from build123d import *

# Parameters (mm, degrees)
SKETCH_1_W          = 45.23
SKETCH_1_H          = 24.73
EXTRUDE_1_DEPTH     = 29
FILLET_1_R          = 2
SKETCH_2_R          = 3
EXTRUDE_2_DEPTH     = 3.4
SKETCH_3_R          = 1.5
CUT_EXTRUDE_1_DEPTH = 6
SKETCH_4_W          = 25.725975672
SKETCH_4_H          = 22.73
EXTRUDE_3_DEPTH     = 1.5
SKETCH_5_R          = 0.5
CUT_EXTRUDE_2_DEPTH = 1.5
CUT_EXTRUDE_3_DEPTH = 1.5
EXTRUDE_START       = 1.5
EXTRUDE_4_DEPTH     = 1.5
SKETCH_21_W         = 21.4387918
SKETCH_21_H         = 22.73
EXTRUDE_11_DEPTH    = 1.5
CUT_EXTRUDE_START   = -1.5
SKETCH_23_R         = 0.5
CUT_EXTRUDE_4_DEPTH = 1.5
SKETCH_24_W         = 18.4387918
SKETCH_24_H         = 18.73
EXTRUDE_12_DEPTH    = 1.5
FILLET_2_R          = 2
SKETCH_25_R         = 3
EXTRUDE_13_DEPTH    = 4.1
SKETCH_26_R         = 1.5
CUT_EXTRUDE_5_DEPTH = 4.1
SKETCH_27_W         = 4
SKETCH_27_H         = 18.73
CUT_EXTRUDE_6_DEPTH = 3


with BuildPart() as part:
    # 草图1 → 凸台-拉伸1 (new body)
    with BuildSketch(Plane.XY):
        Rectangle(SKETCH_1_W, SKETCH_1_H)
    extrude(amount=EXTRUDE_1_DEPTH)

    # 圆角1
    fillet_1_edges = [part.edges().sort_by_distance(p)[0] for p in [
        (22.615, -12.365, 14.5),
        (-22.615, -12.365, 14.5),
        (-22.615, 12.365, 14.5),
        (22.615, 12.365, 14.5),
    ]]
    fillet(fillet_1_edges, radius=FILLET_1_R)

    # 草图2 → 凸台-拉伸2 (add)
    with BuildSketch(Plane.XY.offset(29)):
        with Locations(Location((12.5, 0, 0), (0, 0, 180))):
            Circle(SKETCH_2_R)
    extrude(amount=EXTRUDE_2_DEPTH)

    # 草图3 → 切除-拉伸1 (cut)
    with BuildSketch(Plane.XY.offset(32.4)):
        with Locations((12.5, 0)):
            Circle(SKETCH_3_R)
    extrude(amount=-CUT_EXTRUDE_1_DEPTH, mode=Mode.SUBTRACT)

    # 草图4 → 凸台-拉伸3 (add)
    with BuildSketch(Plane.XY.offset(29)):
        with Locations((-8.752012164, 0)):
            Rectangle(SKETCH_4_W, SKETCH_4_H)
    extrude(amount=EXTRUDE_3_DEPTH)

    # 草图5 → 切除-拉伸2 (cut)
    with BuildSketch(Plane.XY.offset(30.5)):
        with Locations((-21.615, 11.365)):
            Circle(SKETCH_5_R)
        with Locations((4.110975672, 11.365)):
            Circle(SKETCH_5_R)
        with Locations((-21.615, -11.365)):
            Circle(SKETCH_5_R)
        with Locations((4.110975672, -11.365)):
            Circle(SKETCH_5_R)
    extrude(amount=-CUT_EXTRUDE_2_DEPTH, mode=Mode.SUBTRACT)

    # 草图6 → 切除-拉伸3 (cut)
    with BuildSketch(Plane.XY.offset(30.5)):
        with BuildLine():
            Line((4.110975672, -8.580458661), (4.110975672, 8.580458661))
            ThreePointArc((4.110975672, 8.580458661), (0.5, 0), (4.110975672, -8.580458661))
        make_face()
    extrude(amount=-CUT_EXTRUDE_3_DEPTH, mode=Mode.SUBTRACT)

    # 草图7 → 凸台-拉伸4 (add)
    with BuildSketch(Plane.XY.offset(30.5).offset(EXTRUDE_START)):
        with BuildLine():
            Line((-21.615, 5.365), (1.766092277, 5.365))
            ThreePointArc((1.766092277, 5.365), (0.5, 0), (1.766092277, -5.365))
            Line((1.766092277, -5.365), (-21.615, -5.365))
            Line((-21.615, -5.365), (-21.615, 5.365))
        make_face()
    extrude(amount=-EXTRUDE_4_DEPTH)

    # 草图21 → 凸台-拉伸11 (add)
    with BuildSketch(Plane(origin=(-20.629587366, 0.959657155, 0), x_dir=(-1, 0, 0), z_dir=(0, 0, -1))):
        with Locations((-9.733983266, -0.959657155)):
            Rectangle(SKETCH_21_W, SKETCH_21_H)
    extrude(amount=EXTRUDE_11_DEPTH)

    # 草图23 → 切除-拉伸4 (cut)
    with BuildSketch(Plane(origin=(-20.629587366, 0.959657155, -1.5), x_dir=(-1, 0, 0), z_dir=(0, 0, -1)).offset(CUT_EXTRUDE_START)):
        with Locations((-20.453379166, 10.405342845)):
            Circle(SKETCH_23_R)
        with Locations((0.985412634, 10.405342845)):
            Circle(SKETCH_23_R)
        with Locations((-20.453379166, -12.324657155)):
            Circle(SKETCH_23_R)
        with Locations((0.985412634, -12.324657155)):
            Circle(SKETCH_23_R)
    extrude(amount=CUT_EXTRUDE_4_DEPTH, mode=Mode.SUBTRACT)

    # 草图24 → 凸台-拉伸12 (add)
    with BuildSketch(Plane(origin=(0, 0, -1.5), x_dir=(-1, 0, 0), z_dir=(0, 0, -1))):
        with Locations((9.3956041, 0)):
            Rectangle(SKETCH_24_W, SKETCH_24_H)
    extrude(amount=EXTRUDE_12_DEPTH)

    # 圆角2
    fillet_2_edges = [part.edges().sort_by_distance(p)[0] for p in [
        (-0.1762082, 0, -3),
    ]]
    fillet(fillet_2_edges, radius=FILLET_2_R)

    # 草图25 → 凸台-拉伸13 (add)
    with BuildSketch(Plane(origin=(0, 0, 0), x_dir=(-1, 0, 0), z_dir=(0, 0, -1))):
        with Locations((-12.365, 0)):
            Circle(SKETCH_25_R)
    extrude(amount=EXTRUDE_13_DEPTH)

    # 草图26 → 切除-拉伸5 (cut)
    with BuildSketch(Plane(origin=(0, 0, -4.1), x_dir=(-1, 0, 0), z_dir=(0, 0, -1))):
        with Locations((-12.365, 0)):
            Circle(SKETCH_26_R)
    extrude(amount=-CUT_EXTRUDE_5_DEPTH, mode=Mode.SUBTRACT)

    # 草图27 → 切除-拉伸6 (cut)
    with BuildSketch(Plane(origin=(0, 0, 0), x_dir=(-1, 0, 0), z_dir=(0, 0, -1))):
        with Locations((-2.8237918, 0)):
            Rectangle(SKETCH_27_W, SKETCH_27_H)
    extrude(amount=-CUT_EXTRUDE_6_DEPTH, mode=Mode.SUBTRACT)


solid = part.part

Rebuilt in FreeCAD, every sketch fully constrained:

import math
import FreeCAD as App
import Part
import Sketcher
Q = App.Units.Quantity


def edges_at(feature, points):
    """Names of the edges that pass closest to the given points."""
    edges = feature.Shape.Edges
    near = lambda p: min(range(len(edges)), key=lambda i: edges[i].distToShape(Part.Vertex(*p))[0])
    return sorted({f"Edge{near(p) + 1}" for p in points})


def add_polygon(sketch, points):
    """Adds a closed chain of lines whose ends are joined by coincident constraints."""
    first, n = sketch.GeometryCount, len(points)
    for a, b in zip(points, points[1:] + points[:1]):
        sketch.addGeometry(Part.LineSegment(App.Vector(*a, 0), App.Vector(*b, 0)), False)
    for i in range(n):
        sketch.addConstraint(Sketcher.Constraint("Coincident", first + i, 2, first + (i + 1) % n, 1))

doc = App.newDocument("Part")
body = doc.addObject("PartDesign::Body", "Body")

sketch1 = body.newObject("Sketcher::SketchObject", "Sketch")
sketch1.AttachmentSupport = (doc.getObject("XY_Plane"), [""])
sketch1.MapMode = "FlatFace"
add_polygon(sketch1, [(-22.615, 12.365), (-22.615, -12.365), (22.615, -12.365), (22.615, 12.365)])
sketch1.addConstraint(Sketcher.Constraint("Vertical", 0))
sketch1.addConstraint(Sketcher.Constraint("Horizontal", 1))
sketch1.addConstraint(Sketcher.Constraint("Vertical", 2))
sketch1.addConstraint(Sketcher.Constraint("Horizontal", 3))
sketch1.addConstraint(Sketcher.Constraint("Symmetric", 0, 2, 2, 2, -1, 1))
sketch1.addConstraint(Sketcher.Constraint("DistanceX", 1, 1, 1, 2, Q("45.23 mm")))
sketch1.addConstraint(Sketcher.Constraint("DistanceY", 0, 2, 0, 1, Q("24.73 mm")))
pad1 = body.newObject("PartDesign::Pad", "Pad")
pad1.Profile = sketch1
pad1.Length = 29
doc.recompute()

fillet = body.newObject("PartDesign::Fillet", "Fillet")
fillet.Base = (pad1, edges_at(pad1, [
    (22.615, -12.365, 14.5),
    (-22.615, -12.365, 14.5),
    (-22.615, 12.365, 14.5),
    (22.615, 12.365, 14.5),
]))
fillet.Radius = 2

sketch2 = body.newObject("Sketcher::SketchObject", "Sketch001")
sketch2.AttachmentSupport = (doc.getObject("XY_Plane"), [""])
sketch2.MapMode = "FlatFace"
sketch2.AttachmentOffset = App.Placement(App.Vector(0, 0, 29), App.Rotation())
sketch2.addGeometry(Part.Circle(App.Vector(12.5, 0, 0), App.Vector(0, 0, 1), 3), False)
sketch2.addConstraint(Sketcher.Constraint("PointOnObject", 0, 3, -1))
sketch2.addConstraint(Sketcher.Constraint("Diameter", 0, Q("6 mm")))
sketch2.addConstraint(Sketcher.Constraint("DistanceX", -1, 1, 0, 3, Q("12.5 mm")))
pad2 = body.newObject("PartDesign::Pad", "Pad001")
pad2.Profile = sketch2
pad2.Length = 3.4

sketch3 = body.newObject("Sketcher::SketchObject", "Sketch002")
sketch3.AttachmentSupport = (doc.getObject("XY_Plane"), [""])
sketch3.MapMode = "FlatFace"
sketch3.AttachmentOffset = App.Placement(App.Vector(0, 0, 32.4), App.Rotation())
sketch3.addGeometry(Part.Circle(App.Vector(12.5, 0, 0), App.Vector(0, 0, 1), 1.5), False)
sketch3.addConstraint(Sketcher.Constraint("PointOnObject", 0, 3, -1))
sketch3.addConstraint(Sketcher.Constraint("Diameter", 0, Q("3 mm")))
sketch3.addConstraint(Sketcher.Constraint("DistanceX", -1, 1, 0, 3, Q("12.5 mm")))
pocket1 = body.newObject("PartDesign::Pocket", "Pocket")
pocket1.Profile = sketch3
pocket1.Length = 6

sketch4 = body.newObject("Sketcher::SketchObject", "Sketch003")
sketch4.AttachmentSupport = (doc.getObject("XY_Plane"), [""])
sketch4.MapMode = "FlatFace"
sketch4.AttachmentOffset = App.Placement(App.Vector(0, 0, 29), App.Rotation())
add_polygon(sketch4, [(-21.615, 11.365), (-21.615, -11.365), (4.110976, -11.365), (4.110976, 11.365)])
sketch4.addConstraint(Sketcher.Constraint("Vertical", 0))
sketch4.addConstraint(Sketcher.Constraint("Horizontal", 1))
sketch4.addConstraint(Sketcher.Constraint("Vertical", 2))
sketch4.addConstraint(Sketcher.Constraint("Horizontal", 3))
sketch4.addConstraint(Sketcher.Constraint("DistanceY", 0, 2, 0, 1, Q("22.73 mm")))
sketch4.addConstraint(Sketcher.Constraint("DistanceX", 0, 2, -1, 1, Q("21.615 mm")))
sketch4.addConstraint(Sketcher.Constraint("DistanceY", 0, 2, -1, 1, Q("11.365 mm")))
sketch4.addConstraint(Sketcher.Constraint("DistanceX", 1, 1, 1, 2, Q("25.725976 mm")))
pad3 = body.newObject("PartDesign::Pad", "Pad002")
pad3.Profile = sketch4
pad3.Length = 1.5

sketch5 = body.newObject("Sketcher::SketchObject", "Sketch004")
sketch5.AttachmentSupport = (doc.getObject("XY_Plane"), [""])
sketch5.MapMode = "FlatFace"
sketch5.AttachmentOffset = App.Placement(App.Vector(0, 0, 30.5), App.Rotation())
sketch5.addGeometry(Part.Circle(App.Vector(-21.615, 11.365, 0), App.Vector(0, 0, 1), 0.5), False)
sketch5.addGeometry(Part.Circle(App.Vector(4.110976, 11.365, 0), App.Vector(0, 0, 1), 0.5), False)
sketch5.addGeometry(Part.Circle(App.Vector(-21.615, -11.365, 0), App.Vector(0, 0, 1), 0.5), False)
sketch5.addGeometry(Part.Circle(App.Vector(4.110976, -11.365, 0), App.Vector(0, 0, 1), 0.5), False)
sketch5.addConstraint(Sketcher.Constraint("Equal", 0, 1))
sketch5.addConstraint(Sketcher.Constraint("Equal", 1, 2))
sketch5.addConstraint(Sketcher.Constraint("Equal", 2, 3))
sketch5.addConstraint(Sketcher.Constraint("Symmetric", 0, 3, 2, 3, -1))
sketch5.addConstraint(Sketcher.Constraint("Symmetric", 1, 3, 3, 3, -1))
sketch5.addConstraint(Sketcher.Constraint("Horizontal", 0, 3, 1, 3))
sketch5.addConstraint(Sketcher.Constraint("Diameter", 0, Q("1 mm")))
sketch5.addConstraint(Sketcher.Constraint("DistanceY", 2, 3, 0, 3, Q("22.73 mm")))
sketch5.addConstraint(Sketcher.Constraint("DistanceX", 0, 3, -1, 1, Q("21.615 mm")))
sketch5.addConstraint(Sketcher.Constraint("DistanceX", -1, 1, 1, 3, Q("4.110976 mm")))
pocket2 = body.newObject("PartDesign::Pocket", "Pocket001")
pocket2.Profile = sketch5
pocket2.Length = 1.5

sketch6 = body.newObject("Sketcher::SketchObject", "Sketch005")
sketch6.AttachmentSupport = (doc.getObject("XY_Plane"), [""])
sketch6.MapMode = "FlatFace"
sketch6.AttachmentOffset = App.Placement(App.Vector(0, 0, 30.5), App.Rotation())
sketch6.addGeometry(Part.LineSegment(App.Vector(4.110976, -8.580459, 0), App.Vector(4.110976, 8.580459, 0)), False)
sketch6.addGeometry(Part.ArcOfCircle(Part.Circle(App.Vector(12.5, 0, 0), App.Vector(0, 0, 1), 12), math.radians(134.353668), math.radians(225.646332)), False)
sketch6.addConstraint(Sketcher.Constraint("Coincident", 0, 1, 1, 2))
sketch6.addConstraint(Sketcher.Constraint("Coincident", 1, 1, 0, 2))
sketch6.addConstraint(Sketcher.Constraint("Vertical", 0))
sketch6.addConstraint(Sketcher.Constraint("PointOnObject", 1, 3, -1))
sketch6.addConstraint(Sketcher.Constraint("Radius", 1, Q("12 mm")))
sketch6.addConstraint(Sketcher.Constraint("DistanceX", -1, 1, 1, 3, Q("12.5 mm")))
sketch6.addConstraint(Sketcher.Constraint("DistanceY", 0, 1, 0, 2, Q("17.160917 mm")))
pocket3 = body.newObject("PartDesign::Pocket", "Pocket002")
pocket3.Profile = sketch6
pocket3.Length = 1.5

sketch7 = body.newObject("Sketcher::SketchObject", "Sketch006")
sketch7.AttachmentSupport = (doc.getObject("XY_Plane"), [""])
sketch7.MapMode = "FlatFace"
sketch7.AttachmentOffset = App.Placement(App.Vector(0, 0, 32), App.Rotation())
sketch7.addGeometry(Part.LineSegment(App.Vector(1.766092, 5.365, 0), App.Vector(-21.615, 5.365, 0)), False)
sketch7.addGeometry(Part.LineSegment(App.Vector(-21.615, 5.365, 0), App.Vector(-21.615, -5.365, 0)), False)
sketch7.addGeometry(Part.LineSegment(App.Vector(-21.615, -5.365, 0), App.Vector(1.766092, -5.365, 0)), False)
sketch7.addGeometry(Part.ArcOfCircle(Part.Circle(App.Vector(12.5, 0, 0), App.Vector(0, 0, 1), 12), math.radians(153.443293), math.radians(206.556707)), False)
sketch7.addConstraint(Sketcher.Constraint("Coincident", 0, 2, 1, 1))
sketch7.addConstraint(Sketcher.Constraint("Coincident", 1, 2, 2, 1))
sketch7.addConstraint(Sketcher.Constraint("Coincident", 2, 2, 3, 2))
sketch7.addConstraint(Sketcher.Constraint("Coincident", 3, 1, 0, 1))
sketch7.addConstraint(Sketcher.Constraint("Horizontal", 0))
sketch7.addConstraint(Sketcher.Constraint("Vertical", 1))
sketch7.addConstraint(Sketcher.Constraint("Horizontal", 2))
sketch7.addConstraint(Sketcher.Constraint("Symmetric", 2, 2, 3, 1, -1))
sketch7.addConstraint(Sketcher.Constraint("Radius", 3, Q("12 mm")))
sketch7.addConstraint(Sketcher.Constraint("DistanceY", 1, 2, 1, 1, Q("10.73 mm")))
sketch7.addConstraint(Sketcher.Constraint("DistanceX", -1, 1, 3, 3, Q("12.5 mm")))
sketch7.addConstraint(Sketcher.Constraint("DistanceX", 0, 2, -1, 1, Q("21.615 mm")))
pad4 = body.newObject("PartDesign::Pad", "Pad003")
pad4.Profile = sketch7
pad4.Length = 1.5
pad4.Reversed = True

sketch8 = body.newObject("Sketcher::SketchObject", "Sketch007")
sketch8.AttachmentSupport = (doc.getObject("XY_Plane"), [""])
sketch8.MapMode = "FlatFace"
add_polygon(sketch8, [(-0.176208, 11.365), (-0.176208, -11.365), (-21.615, -11.365), (-21.615, 11.365)])
sketch8.addConstraint(Sketcher.Constraint("Vertical", 0))
sketch8.addConstraint(Sketcher.Constraint("Horizontal", 1))
sketch8.addConstraint(Sketcher.Constraint("Vertical", 2))
sketch8.addConstraint(Sketcher.Constraint("Horizontal", 3))
sketch8.addConstraint(Sketcher.Constraint("DistanceY", 0, 2, 0, 1, Q("22.73 mm")))
sketch8.addConstraint(Sketcher.Constraint("DistanceY", 0, 2, -1, 1, Q("11.365 mm")))
sketch8.addConstraint(Sketcher.Constraint("DistanceX", 1, 2, -1, 1, Q("21.615 mm")))
sketch8.addConstraint(Sketcher.Constraint("DistanceX", 1, 2, 1, 1, Q("21.438792 mm")))
pad5 = body.newObject("PartDesign::Pad", "Pad004")
pad5.Profile = sketch8
pad5.Length = 1.5
pad5.Reversed = True

sketch9 = body.newObject("Sketcher::SketchObject", "Sketch008")
sketch9.AttachmentSupport = (doc.getObject("XY_Plane"), [""])
sketch9.MapMode = "FlatFace"
sketch9.addGeometry(Part.Circle(App.Vector(-0.176208, 11.365, 0), App.Vector(0, 0, 1), 0.5), False)
sketch9.addGeometry(Part.Circle(App.Vector(-21.615, 11.365, 0), App.Vector(0, 0, 1), 0.5), False)
sketch9.addGeometry(Part.Circle(App.Vector(-0.176208, -11.365, 0), App.Vector(0, 0, 1), 0.5), False)
sketch9.addGeometry(Part.Circle(App.Vector(-21.615, -11.365, 0), App.Vector(0, 0, 1), 0.5), False)
sketch9.addConstraint(Sketcher.Constraint("Equal", 0, 1))
sketch9.addConstraint(Sketcher.Constraint("Equal", 1, 2))
sketch9.addConstraint(Sketcher.Constraint("Equal", 2, 3))
sketch9.addConstraint(Sketcher.Constraint("Symmetric", 0, 3, 2, 3, -1))
sketch9.addConstraint(Sketcher.Constraint("Symmetric", 1, 3, 3, 3, -1))
sketch9.addConstraint(Sketcher.Constraint("Horizontal", 0, 3, 1, 3))
sketch9.addConstraint(Sketcher.Constraint("Diameter", 0, Q("1 mm")))
sketch9.addConstraint(Sketcher.Constraint("DistanceY", 2, 3, 0, 3, Q("22.73 mm")))
sketch9.addConstraint(Sketcher.Constraint("DistanceX", 1, 3, -1, 1, Q("21.615 mm")))
sketch9.addConstraint(Sketcher.Constraint("DistanceX", 0, 3, -1, 1, Q("0.176208 mm")))
pocket4 = body.newObject("PartDesign::Pocket", "Pocket003")
pocket4.Profile = sketch9
pocket4.Length = 1.5

sketch10 = body.newObject("Sketcher::SketchObject", "Sketch009")
sketch10.AttachmentSupport = (doc.getObject("XY_Plane"), [""])
sketch10.MapMode = "FlatFace"
sketch10.AttachmentOffset = App.Placement(App.Vector(0, 0, -1.5), App.Rotation())
add_polygon(sketch10, [(-0.176208, 9.365), (-0.176208, -9.365), (-18.615, -9.365), (-18.615, 9.365)])
sketch10.addConstraint(Sketcher.Constraint("Vertical", 0))
sketch10.addConstraint(Sketcher.Constraint("Horizontal", 1))
sketch10.addConstraint(Sketcher.Constraint("Vertical", 2))
sketch10.addConstraint(Sketcher.Constraint("Horizontal", 3))
sketch10.addConstraint(Sketcher.Constraint("DistanceY", 0, 2, 0, 1, Q("18.73 mm")))
sketch10.addConstraint(Sketcher.Constraint("DistanceY", 0, 2, -1, 1, Q("9.365 mm")))
sketch10.addConstraint(Sketcher.Constraint("DistanceX", 1, 2, -1, 1, Q("18.615 mm")))
sketch10.addConstraint(Sketcher.Constraint("DistanceX", 1, 2, 1, 1, Q("18.438792 mm")))
pad6 = body.newObject("PartDesign::Pad", "Pad005")
pad6.Profile = sketch10
pad6.Length = 1.5
pad6.Reversed = True
doc.recompute()

fillet2 = body.newObject("PartDesign::Fillet", "Fillet001")
fillet2.Base = (pad6, edges_at(pad6, [(-0.176, 0, -3)]))
fillet2.Radius = 2

sketch11 = body.newObject("Sketcher::SketchObject", "Sketch010")
sketch11.AttachmentSupport = (doc.getObject("XY_Plane"), [""])
sketch11.MapMode = "FlatFace"
sketch11.addGeometry(Part.Circle(App.Vector(12.365, 0, 0), App.Vector(0, 0, 1), 3), False)
sketch11.addConstraint(Sketcher.Constraint("PointOnObject", 0, 3, -1))
sketch11.addConstraint(Sketcher.Constraint("Diameter", 0, Q("6 mm")))
sketch11.addConstraint(Sketcher.Constraint("DistanceX", -1, 1, 0, 3, Q("12.365 mm")))
pad7 = body.newObject("PartDesign::Pad", "Pad006")
pad7.Profile = sketch11
pad7.Length = 4.1
pad7.Reversed = True

sketch12 = body.newObject("Sketcher::SketchObject", "Sketch011")
sketch12.AttachmentSupport = (doc.getObject("XY_Plane"), [""])
sketch12.MapMode = "FlatFace"
sketch12.AttachmentOffset = App.Placement(App.Vector(0, 0, -4.1), App.Rotation())
sketch12.addGeometry(Part.Circle(App.Vector(12.365, 0, 0), App.Vector(0, 0, 1), 1.5), False)
sketch12.addConstraint(Sketcher.Constraint("PointOnObject", 0, 3, -1))
sketch12.addConstraint(Sketcher.Constraint("Diameter", 0, Q("3 mm")))
sketch12.addConstraint(Sketcher.Constraint("DistanceX", -1, 1, 0, 3, Q("12.365 mm")))
pocket5 = body.newObject("PartDesign::Pocket", "Pocket004")
pocket5.Profile = sketch12
pocket5.Length = 4.1
pocket5.Reversed = True

sketch13 = body.newObject("Sketcher::SketchObject", "Sketch012")
sketch13.AttachmentSupport = (doc.getObject("XY_Plane"), [""])
sketch13.MapMode = "FlatFace"
add_polygon(sketch13, [(4.823792, 9.365), (4.823792, -9.365), (0.823792, -9.365), (0.823792, 9.365)])
sketch13.addConstraint(Sketcher.Constraint("Vertical", 0))
sketch13.addConstraint(Sketcher.Constraint("Horizontal", 1))
sketch13.addConstraint(Sketcher.Constraint("Vertical", 2))
sketch13.addConstraint(Sketcher.Constraint("Horizontal", 3))
sketch13.addConstraint(Sketcher.Constraint("DistanceX", 1, 2, 1, 1, Q("4 mm")))
sketch13.addConstraint(Sketcher.Constraint("DistanceY", 0, 2, 0, 1, Q("18.73 mm")))
sketch13.addConstraint(Sketcher.Constraint("DistanceY", 0, 2, -1, 1, Q("9.365 mm")))
sketch13.addConstraint(Sketcher.Constraint("DistanceX", -1, 1, 0, 2, Q("4.823792 mm")))
pocket6 = body.newObject("PartDesign::Pocket", "Pocket005")
pocket6.Profile = sketch13
pocket6.Length = 3
pocket6.Reversed = True

doc.recompute()
